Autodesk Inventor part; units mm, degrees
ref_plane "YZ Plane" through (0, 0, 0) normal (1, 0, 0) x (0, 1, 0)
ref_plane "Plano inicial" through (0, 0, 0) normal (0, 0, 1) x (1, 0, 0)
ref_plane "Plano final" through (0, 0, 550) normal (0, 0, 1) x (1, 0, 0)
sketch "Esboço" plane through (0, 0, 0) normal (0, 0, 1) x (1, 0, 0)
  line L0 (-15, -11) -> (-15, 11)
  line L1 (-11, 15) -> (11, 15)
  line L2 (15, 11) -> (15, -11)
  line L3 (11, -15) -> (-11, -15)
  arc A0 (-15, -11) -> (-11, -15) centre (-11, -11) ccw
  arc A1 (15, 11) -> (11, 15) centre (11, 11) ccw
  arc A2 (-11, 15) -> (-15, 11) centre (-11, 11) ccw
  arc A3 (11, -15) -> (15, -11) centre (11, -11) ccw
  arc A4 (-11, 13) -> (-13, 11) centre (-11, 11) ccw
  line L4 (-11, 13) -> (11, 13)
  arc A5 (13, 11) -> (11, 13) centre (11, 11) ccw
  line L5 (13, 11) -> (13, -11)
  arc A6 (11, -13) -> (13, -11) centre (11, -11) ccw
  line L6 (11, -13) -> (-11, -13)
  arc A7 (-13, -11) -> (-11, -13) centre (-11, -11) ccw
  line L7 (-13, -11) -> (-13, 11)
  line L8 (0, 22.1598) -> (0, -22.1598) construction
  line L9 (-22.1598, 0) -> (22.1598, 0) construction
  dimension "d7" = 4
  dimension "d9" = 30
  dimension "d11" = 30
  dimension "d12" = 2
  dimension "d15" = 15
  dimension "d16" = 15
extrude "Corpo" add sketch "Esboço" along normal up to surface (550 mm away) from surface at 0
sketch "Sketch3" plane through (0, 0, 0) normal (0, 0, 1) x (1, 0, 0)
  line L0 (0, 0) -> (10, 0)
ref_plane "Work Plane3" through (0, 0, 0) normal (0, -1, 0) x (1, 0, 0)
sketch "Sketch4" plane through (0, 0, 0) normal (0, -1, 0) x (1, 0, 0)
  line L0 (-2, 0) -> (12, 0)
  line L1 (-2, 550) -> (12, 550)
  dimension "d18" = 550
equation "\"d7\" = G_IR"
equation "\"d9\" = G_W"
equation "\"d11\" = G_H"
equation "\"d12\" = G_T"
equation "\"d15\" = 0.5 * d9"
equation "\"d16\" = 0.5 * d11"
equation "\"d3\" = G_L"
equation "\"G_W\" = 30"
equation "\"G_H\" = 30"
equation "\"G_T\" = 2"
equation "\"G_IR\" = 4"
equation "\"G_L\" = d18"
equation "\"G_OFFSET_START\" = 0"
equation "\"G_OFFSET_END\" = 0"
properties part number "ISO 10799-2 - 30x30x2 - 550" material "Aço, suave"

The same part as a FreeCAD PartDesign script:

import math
import FreeCAD as App
import Part
import Sketcher
from FreeCAD import Vector
Q = App.Units.Quantity

doc = App.newDocument("Part")
body = doc.addObject("PartDesign::Body", "Body")

sketch1 = doc.addObject("Sketcher::SketchObject", "Sketch")
body.addObject(sketch1)
sketch1.AttachmentSupport = (doc.XY_Plane, [""])
sketch1.MapMode = "FlatFace"
sketch1.addGeometry([
    Part.LineSegment(Vector(-15, 11, 0), Vector(-15, -11, 0)),
    Part.ArcOfCircle(Part.Circle(Vector(-11, -11, 0), Vector(0, 0, 1), 4), math.radians(180), math.radians(270)),
    Part.LineSegment(Vector(-11, -15, 0), Vector(11, -15, 0)),
    Part.ArcOfCircle(Part.Circle(Vector(11, -11, 0), Vector(0, 0, 1), 4), math.radians(-90), math.radians(0)),
    Part.LineSegment(Vector(15, -11, 0), Vector(15, 11, 0)),
    Part.ArcOfCircle(Part.Circle(Vector(11, 11, 0), Vector(0, 0, 1), 4), math.radians(0), math.radians(90)),
    Part.LineSegment(Vector(11, 15, 0), Vector(-11, 15, 0)),
    Part.ArcOfCircle(Part.Circle(Vector(-11, 11, 0), Vector(0, 0, 1), 4), math.radians(90), math.radians(180)),
    Part.ArcOfCircle(Part.Circle(Vector(-11, 11, 0), Vector(0, 0, 1), 2), math.radians(90), math.radians(180)),
    Part.LineSegment(Vector(-11, 13, 0), Vector(11, 13, 0)),
    Part.ArcOfCircle(Part.Circle(Vector(11, 11, 0), Vector(0, 0, 1), 2), math.radians(0), math.radians(90)),
    Part.LineSegment(Vector(13, 11, 0), Vector(13, -11, 0)),
    Part.ArcOfCircle(Part.Circle(Vector(11, -11, 0), Vector(0, 0, 1), 2), math.radians(-90), math.radians(0)),
    Part.LineSegment(Vector(11, -13, 0), Vector(-11, -13, 0)),
    Part.ArcOfCircle(Part.Circle(Vector(-11, -11, 0), Vector(0, 0, 1), 2), math.radians(180), math.radians(270)),
    Part.LineSegment(Vector(-13, -11, 0), Vector(-13, 11, 0)),
], False)
sketch1.addConstraint([
    Sketcher.Constraint("Tangent", 0, 2, 1, 1),
    Sketcher.Constraint("Tangent", 1, 2, 2, 1),
    Sketcher.Constraint("Tangent", 2, 2, 3, 1),
    Sketcher.Constraint("Tangent", 3, 2, 4, 1),
    Sketcher.Constraint("Tangent", 4, 2, 5, 1),
    Sketcher.Constraint("Tangent", 5, 2, 6, 1),
    Sketcher.Constraint("Tangent", 6, 2, 7, 1),
    Sketcher.Constraint("Tangent", 7, 2, 0, 1),
    Sketcher.Constraint("Tangent", 8, 1, 9, 1),
    Sketcher.Constraint("Tangent", 9, 2, 10, 2),
    Sketcher.Constraint("Tangent", 10, 1, 11, 1),
    Sketcher.Constraint("Tangent", 11, 2, 12, 2),
    Sketcher.Constraint("Tangent", 12, 1, 13, 1),
    Sketcher.Constraint("Tangent", 13, 2, 14, 2),
    Sketcher.Constraint("Tangent", 14, 1, 15, 1),
    Sketcher.Constraint("Tangent", 15, 2, 8, 2),
    Sketcher.Constraint("Vertical", 0),
    Sketcher.Constraint("Horizontal", 2),
    Sketcher.Constraint("Vertical", 4),
    Sketcher.Constraint("Horizontal", 6),
    Sketcher.Constraint("Horizontal", 9),
    Sketcher.Constraint("Vertical", 11),
    Sketcher.Constraint("Horizontal", 13),
    Sketcher.Constraint("Vertical", 15),
    Sketcher.Constraint("Coincident", 8, 3, 7, 3),
    Sketcher.Constraint("Coincident", 10, 3, 5, 3),
    Sketcher.Constraint("Coincident", 12, 3, 3, 3),
    Sketcher.Constraint("Equal", 1, 3),
    Sketcher.Constraint("Equal", 3, 5),
    Sketcher.Constraint("Equal", 5, 7),
    Sketcher.Constraint("Equal", 12, 14),
    Sketcher.Constraint("Symmetric", 1, 3, 5, 3, -1, 1),
    Sketcher.Constraint("Equal", 13, 0),
    Sketcher.Constraint("Radius", 1, Q("4 mm")),
    Sketcher.Constraint("Radius", 8, Q("2 mm")),
    Sketcher.Constraint("DistanceX", 0, 2, -1, 1, Q("15 mm")),
])
pad1 = doc.addObject("PartDesign::Pad", "Pad")
body.addObject(pad1)
pad1.Profile = sketch1
pad1.Length = 550

doc.recompute()
